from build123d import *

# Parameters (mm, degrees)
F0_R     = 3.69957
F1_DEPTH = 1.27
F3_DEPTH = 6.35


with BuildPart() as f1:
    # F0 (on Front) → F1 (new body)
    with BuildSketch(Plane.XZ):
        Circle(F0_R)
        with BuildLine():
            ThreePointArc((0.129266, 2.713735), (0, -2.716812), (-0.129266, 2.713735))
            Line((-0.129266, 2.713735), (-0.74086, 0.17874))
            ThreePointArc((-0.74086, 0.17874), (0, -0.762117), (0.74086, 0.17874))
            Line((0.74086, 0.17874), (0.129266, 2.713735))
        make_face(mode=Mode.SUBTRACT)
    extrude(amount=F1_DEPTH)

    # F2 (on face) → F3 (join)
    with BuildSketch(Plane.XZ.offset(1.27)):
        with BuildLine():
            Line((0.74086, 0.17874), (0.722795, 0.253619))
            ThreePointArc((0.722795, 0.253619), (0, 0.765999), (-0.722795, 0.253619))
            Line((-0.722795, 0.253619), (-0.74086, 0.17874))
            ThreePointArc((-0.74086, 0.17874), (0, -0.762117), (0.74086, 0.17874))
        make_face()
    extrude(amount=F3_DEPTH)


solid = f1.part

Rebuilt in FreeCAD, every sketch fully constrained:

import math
import FreeCAD as App
import Part
import Sketcher
Q = App.Units.Quantity

doc = App.newDocument("Part")
params = doc.addObject("Spreadsheet::Sheet", "Params")
for row, (alias, value) in enumerate([
    ("pad1_length", "0.05 in"),
    ("pad2_length", "0.25 in"),
], start=1):
    params.set(f"A{row}", alias)
    params.set(f"B{row}", "=" + value)
    params.setAlias(f"B{row}", alias)

body = doc.addObject("PartDesign::Body", "Body")

# Sketch on XZ plane
sketch1 = doc.addObject("Sketcher::SketchObject", "Sketch")
body.addObject(sketch1)
sketch1.AttachmentSupport = (doc.XZ_Plane, [""])
sketch1.MapMode = "FlatFace"
sketch1.addGeometry([
    Part.Circle(App.Vector(0, 0, 0), App.Vector(0, 0, 1), 3.7),  # 0
    Part.LineSegment(App.Vector(0.74, 0.18, 0), App.Vector(0.13, 2.71, 0)),  # 1
    Part.ArcOfCircle(Part.Circle(App.Vector(0, 0, 0), App.Vector(0, 0, 1), 2.72), math.radians(93), math.radians(447)),  # 2
    Part.LineSegment(App.Vector(-0.13, 2.71, 0), App.Vector(-0.74, 0.18, 0)),  # 3
    Part.ArcOfCircle(Part.Circle(App.Vector(0, 0, 0), App.Vector(0, 0, 1), 0.76), math.radians(166), math.radians(374)),  # 4
], False)
sketch1.addConstraint([
    Sketcher.Constraint("Coincident", 1, 2, 2, 2),
    Sketcher.Constraint("Coincident", 2, 1, 3, 1),
    Sketcher.Constraint("Tangent", 3, 2, 4, 1),
    Sketcher.Constraint("Tangent", 4, 2, 1, 1),
    Sketcher.Constraint("Coincident", 0, 3, -1, 1),
    Sketcher.Constraint("Coincident", 2, 3, -1, 1),
    Sketcher.Constraint("Coincident", 4, 3, -1, 1),
    Sketcher.Constraint("Horizontal", 1, 2, 2, 1),
    Sketcher.Constraint("Diameter", 0, Q("7.39914 mm")),
    Sketcher.Constraint("Radius", 2, Q("2.716812 mm")),
    Sketcher.Constraint("Radius", 4, Q("0.762117 mm")),
    Sketcher.Constraint("DistanceX", 3, 2, -1, 1, Q("0.74086 mm")),
])
pad1 = doc.addObject("PartDesign::Pad", "Pad")
body.addObject(pad1)
pad1.Profile = sketch1
pad1.setExpression("Length", "Params.pad1_length")

# Sketch on XZ plane
sketch2 = doc.addObject("Sketcher::SketchObject", "Sketch001")
body.addObject(sketch2)
sketch2.AttachmentSupport = (doc.XZ_Plane, [""])
sketch2.MapMode = "FlatFace"
sketch2.AttachmentOffset = App.Placement(App.Vector(0, 0, 0.05 * 25.4), App.Rotation())
sketch2.addGeometry([
    Part.LineSegment(App.Vector(0.74, 0.18, 0), App.Vector(0.72, 0.25, 0)),
    Part.ArcOfCircle(Part.Circle(App.Vector(0, 0, 0), App.Vector(0, 0, 1), 0.77), math.radians(19), math.radians(161)),
    Part.LineSegment(App.Vector(-0.72, 0.25, 0), App.Vector(-0.74, 0.18, 0)),
    Part.ArcOfCircle(Part.Circle(App.Vector(0, 0, 0), App.Vector(0, 0, 1), 0.76), math.radians(166), math.radians(374)),
], False)
sketch2.addConstraint([
    Sketcher.Constraint("Coincident", 0, 2, 1, 1),
    Sketcher.Constraint("Coincident", 1, 2, 2, 1),
    Sketcher.Constraint("Coincident", 2, 2, 3, 1),
    Sketcher.Constraint("Coincident", 3, 2, 0, 1),
    Sketcher.Constraint("Coincident", 1, 3, -1, 1),
    Sketcher.Constraint("Coincident", 3, 3, -1, 1),
    Sketcher.Constraint("Horizontal", 0, 2, 1, 2),
    Sketcher.Constraint("Horizontal", 2, 2, 3, 2),
    Sketcher.Constraint("Radius", 1, Q("0.766 mm")),
    Sketcher.Constraint("Radius", 3, Q("0.762117 mm")),
    Sketcher.Constraint("DistanceY", -1, 1, 0, 2, Q("0.253619 mm")),
    Sketcher.Constraint("DistanceX", 2, 2, -1, 1, Q("0.74086 mm")),
])
pad2 = doc.addObject("PartDesign::Pad", "Pad001")
body.addObject(pad2)
pad2.Profile = sketch2
pad2.setExpression("Length", "Params.pad2_length")

doc.recompute()
